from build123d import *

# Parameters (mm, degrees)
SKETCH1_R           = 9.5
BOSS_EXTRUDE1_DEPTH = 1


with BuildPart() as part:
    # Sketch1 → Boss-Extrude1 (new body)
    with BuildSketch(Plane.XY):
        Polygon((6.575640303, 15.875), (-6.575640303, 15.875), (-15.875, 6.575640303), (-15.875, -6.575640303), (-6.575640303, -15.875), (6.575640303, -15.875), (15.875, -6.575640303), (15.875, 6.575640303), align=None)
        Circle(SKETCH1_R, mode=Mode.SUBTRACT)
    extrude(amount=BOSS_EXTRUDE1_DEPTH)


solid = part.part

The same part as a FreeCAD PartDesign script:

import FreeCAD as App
import Part
import Sketcher
from FreeCAD import Vector

doc = App.newDocument("Part")
body = doc.addObject("PartDesign::Body", "Body")

# Sketch on XY plane
sketch1 = doc.addObject("Sketcher::SketchObject", "Sketch")
body.addObject(sketch1)
sketch1.AttachmentSupport = (doc.XY_Plane, [""])
sketch1.MapMode = "FlatFace"
sketch1.addGeometry([
    Part.LineSegment(Vector(6.57564, 15.875, 0), Vector(-6.57564, 15.875, 0)),  # 0
    Part.LineSegment(Vector(-6.57564, 15.875, 0), Vector(-15.875, 6.57564, 0)),  # 1
    Part.LineSegment(Vector(-15.875, 6.57564, 0), Vector(-15.875, -6.57564, 0)),  # 2
    Part.LineSegment(Vector(-15.875, -6.57564, 0), Vector(-6.57564, -15.875, 0)),  # 3
    Part.LineSegment(Vector(-6.57564, -15.875, 0), Vector(6.57564, -15.875, 0)),  # 4
    Part.LineSegment(Vector(6.57564, -15.875, 0), Vector(15.875, -6.57564, 0)),  # 5
    Part.LineSegment(Vector(15.875, -6.57564, 0), Vector(15.875, 6.57564, 0)),  # 6
    Part.LineSegment(Vector(15.875, 6.57564, 0), Vector(6.57564, 15.875, 0)),  # 7
    Part.Circle(Vector(0, 0, 0), Vector(0, 0, 1), 9.5),  # 8
], False)
sketch1.addConstraint([
    Sketcher.Constraint("Coincident", 0, 2, 1, 1),
    Sketcher.Constraint("Coincident", 1, 2, 2, 1),
    Sketcher.Constraint("Coincident", 2, 2, 3, 1),
    Sketcher.Constraint("Coincident", 3, 2, 4, 1),
    Sketcher.Constraint("Coincident", 4, 2, 5, 1),
    Sketcher.Constraint("Coincident", 5, 2, 6, 1),
    Sketcher.Constraint("Coincident", 6, 2, 7, 1),
    Sketcher.Constraint("Coincident", 7, 2, 0, 1),
    Sketcher.Constraint("Horizontal", 0),
    Sketcher.Constraint("Vertical", 2),
    Sketcher.Constraint("Horizontal", 4),
    Sketcher.Constraint("Vertical", 6),
    Sketcher.Constraint("Coincident", 8, 3, -1, 1),
    Sketcher.Constraint("Symmetric", 0, 2, 4, 2, -1, 1),
    Sketcher.Constraint("Symmetric", 1, 2, 5, 2, -1, 1),
    Sketcher.Constraint("Perpendicular", 1, 3),
    Sketcher.Constraint("Perpendicular", 5, 7),
    Sketcher.Constraint("Horizontal", 2, 2, 5, 2),
    Sketcher.Constraint("Horizontal", 1, 2, 6, 2),
    Sketcher.Constraint("Vertical", 0, 2, 3, 2),
    Sketcher.Constraint("Equal", 4, 2),
    Sketcher.Constraint("Diameter", 8, 19.0),
    Sketcher.Constraint("DistanceY", 3, 2, 0, 2, 31.75),
    Sketcher.Constraint("DistanceX", 0, 2, 0, 1, 13.151281),
])
pad1 = doc.addObject("PartDesign::Pad", "Pad")
body.addObject(pad1)
pad1.Profile = sketch1
pad1.Length = 1

doc.recompute()
